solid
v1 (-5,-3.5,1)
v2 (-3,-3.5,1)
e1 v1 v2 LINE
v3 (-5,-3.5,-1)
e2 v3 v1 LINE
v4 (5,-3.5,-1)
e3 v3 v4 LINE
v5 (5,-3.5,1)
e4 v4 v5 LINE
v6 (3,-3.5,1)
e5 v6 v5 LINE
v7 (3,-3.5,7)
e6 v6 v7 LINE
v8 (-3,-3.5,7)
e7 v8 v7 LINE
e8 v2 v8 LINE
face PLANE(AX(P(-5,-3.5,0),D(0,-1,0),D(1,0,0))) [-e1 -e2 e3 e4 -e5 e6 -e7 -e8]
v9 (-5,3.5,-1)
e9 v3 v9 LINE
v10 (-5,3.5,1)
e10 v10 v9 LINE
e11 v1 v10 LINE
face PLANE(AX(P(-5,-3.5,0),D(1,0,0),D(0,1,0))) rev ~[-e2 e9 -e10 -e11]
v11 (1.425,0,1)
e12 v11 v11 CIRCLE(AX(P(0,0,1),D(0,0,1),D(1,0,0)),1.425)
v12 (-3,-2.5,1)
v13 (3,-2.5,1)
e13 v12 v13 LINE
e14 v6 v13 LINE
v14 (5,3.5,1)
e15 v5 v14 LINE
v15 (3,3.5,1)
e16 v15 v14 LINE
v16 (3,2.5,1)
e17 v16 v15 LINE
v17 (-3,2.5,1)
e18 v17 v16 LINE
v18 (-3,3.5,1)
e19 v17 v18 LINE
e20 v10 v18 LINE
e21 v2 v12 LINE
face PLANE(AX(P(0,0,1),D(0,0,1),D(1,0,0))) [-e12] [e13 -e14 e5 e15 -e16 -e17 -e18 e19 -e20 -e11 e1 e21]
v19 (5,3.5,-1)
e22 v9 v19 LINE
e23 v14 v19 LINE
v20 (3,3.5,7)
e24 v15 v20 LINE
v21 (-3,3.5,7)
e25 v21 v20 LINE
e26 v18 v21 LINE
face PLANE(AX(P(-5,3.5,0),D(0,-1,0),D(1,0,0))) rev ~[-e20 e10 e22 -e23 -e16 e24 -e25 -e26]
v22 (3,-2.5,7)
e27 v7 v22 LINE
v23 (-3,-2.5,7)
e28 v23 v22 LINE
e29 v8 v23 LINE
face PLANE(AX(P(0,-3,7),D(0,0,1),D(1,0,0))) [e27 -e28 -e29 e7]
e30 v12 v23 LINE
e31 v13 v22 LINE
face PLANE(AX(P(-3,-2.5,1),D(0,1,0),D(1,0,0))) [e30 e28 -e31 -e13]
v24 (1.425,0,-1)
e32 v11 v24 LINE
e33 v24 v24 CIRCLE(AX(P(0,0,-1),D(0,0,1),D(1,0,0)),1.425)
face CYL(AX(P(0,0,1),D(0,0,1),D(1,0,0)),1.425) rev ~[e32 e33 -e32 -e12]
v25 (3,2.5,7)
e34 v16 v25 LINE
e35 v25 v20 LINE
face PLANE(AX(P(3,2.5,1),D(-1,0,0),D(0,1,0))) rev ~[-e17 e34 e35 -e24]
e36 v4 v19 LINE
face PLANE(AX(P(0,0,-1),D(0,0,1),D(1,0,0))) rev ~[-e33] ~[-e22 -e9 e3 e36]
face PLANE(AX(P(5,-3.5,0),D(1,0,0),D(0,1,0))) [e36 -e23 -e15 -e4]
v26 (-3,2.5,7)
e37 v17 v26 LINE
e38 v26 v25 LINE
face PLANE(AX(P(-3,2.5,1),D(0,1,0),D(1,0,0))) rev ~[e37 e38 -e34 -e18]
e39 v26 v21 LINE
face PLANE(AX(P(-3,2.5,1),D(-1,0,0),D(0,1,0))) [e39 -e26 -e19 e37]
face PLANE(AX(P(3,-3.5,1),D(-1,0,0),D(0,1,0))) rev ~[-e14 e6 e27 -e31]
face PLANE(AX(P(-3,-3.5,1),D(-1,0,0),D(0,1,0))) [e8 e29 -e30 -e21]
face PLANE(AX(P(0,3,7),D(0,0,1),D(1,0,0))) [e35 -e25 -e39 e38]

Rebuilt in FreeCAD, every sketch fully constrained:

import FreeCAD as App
import Part
import Sketcher
from FreeCAD import Vector

doc = App.newDocument("Part")
body = doc.addObject("PartDesign::Body", "Body")

# Sketch on XY plane
sketch1 = body.newObject("Sketcher::SketchObject", "Sketch")
sketch1.AttachmentSupport = (doc.getObject("XY_Plane"), [""])
sketch1.MapMode = "FlatFace"
sketch1.addGeometry(Part.LineSegment(Vector(-5, 4, 0), Vector(-5, -4, 0)), False)
sketch1.addGeometry(Part.LineSegment(Vector(-5, -4, 0), Vector(5, -4, 0)), False)
sketch1.addGeometry(Part.LineSegment(Vector(5, -4, 0), Vector(5, 4, 0)), False)
sketch1.addGeometry(Part.LineSegment(Vector(5, 4, 0), Vector(-5, 4, 0)), False)
sketch1.addConstraint(Sketcher.Constraint("Coincident", 0, 2, 1, 1))
sketch1.addConstraint(Sketcher.Constraint("Coincident", 1, 2, 2, 1))
sketch1.addConstraint(Sketcher.Constraint("Coincident", 2, 2, 3, 1))
sketch1.addConstraint(Sketcher.Constraint("Coincident", 3, 2, 0, 1))
sketch1.addConstraint(Sketcher.Constraint("Vertical", 0))
sketch1.addConstraint(Sketcher.Constraint("Horizontal", 1))
sketch1.addConstraint(Sketcher.Constraint("Vertical", 2))
sketch1.addConstraint(Sketcher.Constraint("Horizontal", 3))
sketch1.addConstraint(Sketcher.Constraint("Symmetric", 0, 2, 2, 2, -1, 1))
sketch1.addConstraint(Sketcher.Constraint("DistanceX", 1, 1, 1, 2, 10.0))
sketch1.addConstraint(Sketcher.Constraint("DistanceY", 0, 2, 0, 1, 7.0))
pad1 = body.newObject("PartDesign::Pad", "Pad")
pad1.Profile = sketch1
pad1.Length = 2
pad1.Midplane = True

# Sketch on XY plane
sketch2 = body.newObject("Sketcher::SketchObject", "Sketch001")
sketch2.AttachmentSupport = (doc.getObject("XY_Plane"), [""])
sketch2.MapMode = "FlatFace"
sketch2.AttachmentOffset = App.Placement(Vector(0, 0, 1), App.Rotation())
sketch2.addGeometry(Part.Circle(Vector(0, 0, 0), Vector(0, 0, 1), 1.4), False)
sketch2.addConstraint(Sketcher.Constraint("Coincident", 0, 3, -1, 1))
sketch2.addConstraint(Sketcher.Constraint("Diameter", 0, 2.85))
pocket1 = body.newObject("PartDesign::Pocket", "Pocket")
pocket1.Profile = sketch2
pocket1.Type = "ThroughAll"

# Sketch on XY plane
sketch3 = body.newObject("Sketcher::SketchObject", "Sketch002")
sketch3.AttachmentSupport = (doc.getObject("XY_Plane"), [""])
sketch3.MapMode = "FlatFace"
sketch3.AttachmentOffset = App.Placement(Vector(0, 0, 1), App.Rotation())
sketch3.addGeometry(Part.LineSegment(Vector(-3, 3.5, 0), Vector(-3, 2.5, 0)), False)
sketch3.addGeometry(Part.LineSegment(Vector(-3, 2.5, 0), Vector(3, 2.5, 0)), False)
sketch3.addGeometry(Part.LineSegment(Vector(3, 2.5, 0), Vector(3, 3.5, 0)), False)
sketch3.addGeometry(Part.LineSegment(Vector(3, 3.5, 0), Vector(-3, 3.5, 0)), False)
sketch3.addGeometry(Part.LineSegment(Vector(-3, -2.5, 0), Vector(-3, -3.5, 0)), False)
sketch3.addGeometry(Part.LineSegment(Vector(-3, -3.5, 0), Vector(3, -3.5, 0)), False)
sketch3.addGeometry(Part.LineSegment(Vector(3, -3.5, 0), Vector(3, -2.5, 0)), False)
sketch3.addGeometry(Part.LineSegment(Vector(3, -2.5, 0), Vector(-3, -2.5, 0)), False)
sketch3.addConstraint(Sketcher.Constraint("Coincident", 0, 2, 1, 1))
sketch3.addConstraint(Sketcher.Constraint("Coincident", 1, 2, 2, 1))
sketch3.addConstraint(Sketcher.Constraint("Coincident", 2, 2, 3, 1))
sketch3.addConstraint(Sketcher.Constraint("Coincident", 3, 2, 0, 1))
sketch3.addConstraint(Sketcher.Constraint("Coincident", 4, 2, 5, 1))
sketch3.addConstraint(Sketcher.Constraint("Coincident", 5, 2, 6, 1))
sketch3.addConstraint(Sketcher.Constraint("Coincident", 6, 2, 7, 1))
sketch3.addConstraint(Sketcher.Constraint("Coincident", 7, 2, 4, 1))
sketch3.addConstraint(Sketcher.Constraint("Vertical", 0))
sketch3.addConstraint(Sketcher.Constraint("Horizontal", 1))
sketch3.addConstraint(Sketcher.Constraint("Vertical", 2))
sketch3.addConstraint(Sketcher.Constraint("Horizontal", 3))
sketch3.addConstraint(Sketcher.Constraint("Vertical", 4))
sketch3.addConstraint(Sketcher.Constraint("Horizontal", 5))
sketch3.addConstraint(Sketcher.Constraint("Vertical", 6))
sketch3.addConstraint(Sketcher.Constraint("Horizontal", 7))
sketch3.addConstraint(Sketcher.Constraint("Symmetric", 2, 2, 4, 2, -1, 1))
sketch3.addConstraint(Sketcher.Constraint("Symmetric", 0, 2, 6, 2, -1, 1))
sketch3.addConstraint(Sketcher.Constraint("Vertical", 3, 2, 4, 2))
sketch3.addConstraint(Sketcher.Constraint("DistanceX", 1, 1, 1, 2, 6.0))
sketch3.addConstraint(Sketcher.Constraint("DistanceY", 0, 2, 0, 1, 1.0))
sketch3.addConstraint(Sketcher.Constraint("DistanceY", 4, 2, 0, 2, 6.0))
pad2 = body.newObject("PartDesign::Pad", "Pad001")
pad2.Profile = sketch3
pad2.Length = 6

doc.recompute()
